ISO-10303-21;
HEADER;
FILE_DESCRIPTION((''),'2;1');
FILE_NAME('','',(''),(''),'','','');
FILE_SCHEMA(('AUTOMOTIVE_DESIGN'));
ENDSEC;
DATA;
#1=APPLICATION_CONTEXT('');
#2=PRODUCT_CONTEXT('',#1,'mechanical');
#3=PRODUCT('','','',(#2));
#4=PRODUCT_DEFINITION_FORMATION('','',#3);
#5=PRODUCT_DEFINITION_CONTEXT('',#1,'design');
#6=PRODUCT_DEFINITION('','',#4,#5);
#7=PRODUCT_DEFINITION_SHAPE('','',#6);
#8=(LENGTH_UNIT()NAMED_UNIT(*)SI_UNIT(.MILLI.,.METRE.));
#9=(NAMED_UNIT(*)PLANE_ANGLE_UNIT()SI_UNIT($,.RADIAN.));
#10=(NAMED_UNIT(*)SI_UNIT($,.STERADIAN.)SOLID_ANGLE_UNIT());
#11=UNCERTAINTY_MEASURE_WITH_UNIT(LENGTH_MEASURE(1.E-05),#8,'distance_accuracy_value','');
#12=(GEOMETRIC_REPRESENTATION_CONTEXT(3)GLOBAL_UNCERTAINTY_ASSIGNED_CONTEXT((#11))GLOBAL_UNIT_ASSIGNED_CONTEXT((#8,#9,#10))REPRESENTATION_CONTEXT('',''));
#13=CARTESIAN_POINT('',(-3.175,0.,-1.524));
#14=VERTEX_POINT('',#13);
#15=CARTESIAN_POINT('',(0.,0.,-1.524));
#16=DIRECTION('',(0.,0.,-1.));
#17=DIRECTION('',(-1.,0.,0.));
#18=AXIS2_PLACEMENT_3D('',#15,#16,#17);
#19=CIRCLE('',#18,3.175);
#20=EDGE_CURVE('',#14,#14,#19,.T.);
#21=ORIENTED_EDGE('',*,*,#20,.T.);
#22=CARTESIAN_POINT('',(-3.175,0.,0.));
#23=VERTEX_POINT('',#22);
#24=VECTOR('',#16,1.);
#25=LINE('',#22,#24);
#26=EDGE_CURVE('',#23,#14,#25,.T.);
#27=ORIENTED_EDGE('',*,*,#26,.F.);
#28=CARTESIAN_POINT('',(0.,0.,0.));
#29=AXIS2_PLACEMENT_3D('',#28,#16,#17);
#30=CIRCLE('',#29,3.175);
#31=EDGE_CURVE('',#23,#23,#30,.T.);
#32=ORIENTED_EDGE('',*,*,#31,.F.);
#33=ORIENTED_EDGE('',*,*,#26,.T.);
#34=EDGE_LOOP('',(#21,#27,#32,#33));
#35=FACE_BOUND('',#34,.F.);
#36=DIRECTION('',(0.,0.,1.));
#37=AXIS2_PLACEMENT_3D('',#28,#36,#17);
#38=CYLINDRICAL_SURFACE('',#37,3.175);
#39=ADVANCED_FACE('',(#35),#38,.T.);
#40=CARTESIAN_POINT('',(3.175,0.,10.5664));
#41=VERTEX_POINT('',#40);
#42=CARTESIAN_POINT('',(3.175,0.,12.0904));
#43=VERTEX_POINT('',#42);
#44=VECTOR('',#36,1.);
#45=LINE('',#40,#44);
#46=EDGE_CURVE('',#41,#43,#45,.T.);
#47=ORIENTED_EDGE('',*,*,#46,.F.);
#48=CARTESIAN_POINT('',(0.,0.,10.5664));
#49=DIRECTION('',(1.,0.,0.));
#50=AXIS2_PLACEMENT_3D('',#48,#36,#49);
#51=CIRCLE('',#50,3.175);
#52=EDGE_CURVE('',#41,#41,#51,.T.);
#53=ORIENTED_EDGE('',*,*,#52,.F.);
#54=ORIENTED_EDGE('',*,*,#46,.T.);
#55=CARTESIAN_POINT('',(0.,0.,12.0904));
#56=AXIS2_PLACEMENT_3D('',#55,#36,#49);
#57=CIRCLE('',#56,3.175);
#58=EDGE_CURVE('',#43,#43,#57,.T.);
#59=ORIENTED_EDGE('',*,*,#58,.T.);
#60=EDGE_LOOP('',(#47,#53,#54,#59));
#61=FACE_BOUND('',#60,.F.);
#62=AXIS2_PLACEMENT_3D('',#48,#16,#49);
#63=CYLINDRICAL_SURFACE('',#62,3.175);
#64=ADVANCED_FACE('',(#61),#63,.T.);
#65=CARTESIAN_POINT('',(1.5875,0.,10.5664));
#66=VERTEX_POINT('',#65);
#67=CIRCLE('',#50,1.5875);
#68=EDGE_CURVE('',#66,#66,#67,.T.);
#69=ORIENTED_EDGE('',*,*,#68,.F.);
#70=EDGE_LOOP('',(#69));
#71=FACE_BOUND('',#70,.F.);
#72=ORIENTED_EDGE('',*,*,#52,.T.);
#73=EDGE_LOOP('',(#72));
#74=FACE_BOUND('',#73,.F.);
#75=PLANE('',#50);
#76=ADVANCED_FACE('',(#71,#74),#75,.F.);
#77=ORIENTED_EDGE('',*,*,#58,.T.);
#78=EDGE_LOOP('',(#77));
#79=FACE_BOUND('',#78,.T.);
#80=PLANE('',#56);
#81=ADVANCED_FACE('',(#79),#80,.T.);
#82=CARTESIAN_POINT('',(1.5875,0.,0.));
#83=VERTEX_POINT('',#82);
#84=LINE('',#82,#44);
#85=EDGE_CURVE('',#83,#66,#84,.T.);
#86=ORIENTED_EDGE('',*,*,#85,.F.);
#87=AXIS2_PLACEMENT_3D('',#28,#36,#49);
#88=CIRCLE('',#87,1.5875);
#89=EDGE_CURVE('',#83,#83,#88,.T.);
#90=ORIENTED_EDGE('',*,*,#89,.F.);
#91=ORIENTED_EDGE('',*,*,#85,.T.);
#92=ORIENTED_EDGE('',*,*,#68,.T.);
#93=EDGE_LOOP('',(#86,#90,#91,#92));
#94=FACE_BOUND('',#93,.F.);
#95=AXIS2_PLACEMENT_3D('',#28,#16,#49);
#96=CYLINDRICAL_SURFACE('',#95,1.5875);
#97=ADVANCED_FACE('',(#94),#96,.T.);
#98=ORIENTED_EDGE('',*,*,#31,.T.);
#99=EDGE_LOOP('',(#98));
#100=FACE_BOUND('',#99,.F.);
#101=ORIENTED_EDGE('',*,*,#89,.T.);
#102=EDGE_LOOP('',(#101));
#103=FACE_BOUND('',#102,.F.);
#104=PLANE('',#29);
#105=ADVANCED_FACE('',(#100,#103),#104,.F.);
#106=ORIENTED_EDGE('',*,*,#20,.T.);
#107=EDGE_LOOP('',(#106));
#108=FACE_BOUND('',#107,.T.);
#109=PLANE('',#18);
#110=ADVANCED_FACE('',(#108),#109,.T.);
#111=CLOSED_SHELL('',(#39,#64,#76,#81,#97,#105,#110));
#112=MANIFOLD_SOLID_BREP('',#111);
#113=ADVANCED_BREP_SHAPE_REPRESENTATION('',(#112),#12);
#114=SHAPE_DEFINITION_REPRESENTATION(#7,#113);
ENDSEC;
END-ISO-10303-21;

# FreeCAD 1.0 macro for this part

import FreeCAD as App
import Part
import Sketcher
Q = App.Units.Quantity

doc = App.newDocument("Part")
body = doc.addObject("PartDesign::Body", "Body")

sketch1 = doc.addObject("Sketcher::SketchObject", "Sketch")
body.addObject(sketch1)
sketch1.AttachmentSupport = (doc.XY_Plane, [""])
sketch1.MapMode = "FlatFace"
sketch1.addGeometry(Part.Circle(App.Vector(0, 0, 0), App.Vector(0, 0, 1), 1.6), False)
sketch1.addConstraint(Sketcher.Constraint("Coincident", 0, 3, -1, 1))
sketch1.addConstraint(Sketcher.Constraint("Diameter", 0, Q("0.125 in")))
pad1 = doc.addObject("PartDesign::Pad", "Pad")
body.addObject(pad1)
pad1.Profile = sketch1
pad1.Length = Q("0.416 in")

sketch2 = doc.addObject("Sketcher::SketchObject", "Sketch001")
body.addObject(sketch2)
sketch2.AttachmentSupport = (doc.XY_Plane, [""])
sketch2.MapMode = "FlatFace"
sketch2.AttachmentOffset = App.Placement(App.Vector(0, 0, 0.416 * 25.4), App.Rotation())
sketch2.addGeometry(Part.Circle(App.Vector(0, 0, 0), App.Vector(0, 0, 1), 3.2), False)
sketch2.addConstraint(Sketcher.Constraint("Coincident", 0, 3, -1, 1))
sketch2.addConstraint(Sketcher.Constraint("Diameter", 0, Q("0.25 in")))
pad2 = doc.addObject("PartDesign::Pad", "Pad001")
body.addObject(pad2)
pad2.Profile = sketch2
pad2.Length = Q("0.06 in")

sketch3 = doc.addObject("Sketcher::SketchObject", "Sketch002")
body.addObject(sketch3)
sketch3.AttachmentSupport = (doc.XY_Plane, [""])
sketch3.MapMode = "FlatFace"
sketch3.addGeometry(Part.Circle(App.Vector(0, 0, 0), App.Vector(0, 0, 1), 3.2), False)
sketch3.addConstraint(Sketcher.Constraint("Coincident", 0, 3, -1, 1))
sketch3.addConstraint(Sketcher.Constraint("Diameter", 0, Q("0.25 in")))
pad3 = doc.addObject("PartDesign::Pad", "Pad002")
body.addObject(pad3)
pad3.Profile = sketch3
pad3.Length = Q("0.06 in")
pad3.Reversed = True

doc.recompute()
